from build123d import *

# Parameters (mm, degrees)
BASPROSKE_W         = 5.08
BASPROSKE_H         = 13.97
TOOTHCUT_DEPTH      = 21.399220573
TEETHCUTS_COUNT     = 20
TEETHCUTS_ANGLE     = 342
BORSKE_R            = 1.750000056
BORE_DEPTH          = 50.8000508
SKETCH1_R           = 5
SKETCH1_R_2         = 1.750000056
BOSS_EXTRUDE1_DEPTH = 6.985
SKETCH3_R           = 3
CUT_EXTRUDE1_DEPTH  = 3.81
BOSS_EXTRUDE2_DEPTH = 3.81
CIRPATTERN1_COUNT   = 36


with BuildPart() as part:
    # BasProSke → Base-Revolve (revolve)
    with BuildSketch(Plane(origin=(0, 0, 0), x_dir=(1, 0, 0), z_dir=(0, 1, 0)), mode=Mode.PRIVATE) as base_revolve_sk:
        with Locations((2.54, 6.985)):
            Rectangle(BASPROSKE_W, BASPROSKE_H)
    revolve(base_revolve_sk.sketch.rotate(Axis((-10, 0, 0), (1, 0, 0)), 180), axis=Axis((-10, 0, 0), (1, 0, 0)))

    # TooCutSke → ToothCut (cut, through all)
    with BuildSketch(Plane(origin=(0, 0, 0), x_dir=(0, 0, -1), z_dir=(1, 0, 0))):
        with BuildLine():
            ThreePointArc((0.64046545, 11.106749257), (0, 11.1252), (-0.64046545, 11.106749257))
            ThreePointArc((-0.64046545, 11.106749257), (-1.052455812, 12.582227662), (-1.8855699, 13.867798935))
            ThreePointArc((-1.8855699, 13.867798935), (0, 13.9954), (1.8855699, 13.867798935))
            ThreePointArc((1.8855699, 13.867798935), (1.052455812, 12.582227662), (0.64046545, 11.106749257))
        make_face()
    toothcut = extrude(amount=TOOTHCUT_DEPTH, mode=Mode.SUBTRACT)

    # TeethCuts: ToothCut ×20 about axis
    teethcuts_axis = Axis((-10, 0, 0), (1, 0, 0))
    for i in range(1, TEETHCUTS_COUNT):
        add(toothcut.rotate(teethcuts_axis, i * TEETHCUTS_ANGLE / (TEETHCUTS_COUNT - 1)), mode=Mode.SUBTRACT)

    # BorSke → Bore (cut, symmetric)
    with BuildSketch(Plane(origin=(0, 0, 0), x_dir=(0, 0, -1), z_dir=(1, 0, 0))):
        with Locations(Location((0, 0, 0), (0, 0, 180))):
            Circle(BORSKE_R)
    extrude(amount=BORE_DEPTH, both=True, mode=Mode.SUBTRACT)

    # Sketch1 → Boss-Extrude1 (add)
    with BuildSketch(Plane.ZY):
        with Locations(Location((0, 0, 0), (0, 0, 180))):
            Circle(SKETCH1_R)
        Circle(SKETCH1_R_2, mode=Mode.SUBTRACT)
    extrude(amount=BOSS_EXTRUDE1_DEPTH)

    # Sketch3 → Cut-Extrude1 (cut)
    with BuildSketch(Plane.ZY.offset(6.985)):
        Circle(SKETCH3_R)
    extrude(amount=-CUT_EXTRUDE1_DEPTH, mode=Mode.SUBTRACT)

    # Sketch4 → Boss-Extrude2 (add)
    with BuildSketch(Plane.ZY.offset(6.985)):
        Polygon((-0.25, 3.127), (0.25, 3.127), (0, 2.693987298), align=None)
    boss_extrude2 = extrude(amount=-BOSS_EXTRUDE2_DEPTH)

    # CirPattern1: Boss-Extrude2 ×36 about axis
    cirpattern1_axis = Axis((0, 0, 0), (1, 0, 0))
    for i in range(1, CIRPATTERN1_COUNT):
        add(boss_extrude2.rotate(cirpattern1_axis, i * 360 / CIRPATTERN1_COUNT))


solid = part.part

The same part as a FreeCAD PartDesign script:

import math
import FreeCAD as App
import Part
import Sketcher

V = App.Vector
Q = App.Units.Quantity

doc = App.newDocument("Part")
body = doc.addObject("PartDesign::Body", "Body")

sketch1 = doc.addObject("Sketcher::SketchObject", "Sketch")
body.addObject(sketch1)
sketch1.AttachmentSupport = (doc.XZ_Plane, [""])
sketch1.MapMode = "FlatFace"
sketch1.addGeometry(Part.LineSegment(V(0, -14, 0), V(0, 0, 0)), False)
sketch1.addGeometry(Part.LineSegment(V(0, 0, 0), V(5, 0, 0)), False)
sketch1.addGeometry(Part.LineSegment(V(5, 0, 0), V(5, -14, 0)), False)
sketch1.addGeometry(Part.LineSegment(V(5, -14, 0), V(0, -14, 0)), False)
sketch1.addConstraint(Sketcher.Constraint("Coincident", 0, 2, 1, 1))
sketch1.addConstraint(Sketcher.Constraint("Coincident", 1, 2, 2, 1))
sketch1.addConstraint(Sketcher.Constraint("Coincident", 2, 2, 3, 1))
sketch1.addConstraint(Sketcher.Constraint("Coincident", 3, 2, 0, 1))
sketch1.addConstraint(Sketcher.Constraint("Vertical", 0))
sketch1.addConstraint(Sketcher.Constraint("Horizontal", 1))
sketch1.addConstraint(Sketcher.Constraint("Vertical", 2))
sketch1.addConstraint(Sketcher.Constraint("Horizontal", 3))
sketch1.addConstraint(Sketcher.Constraint("Coincident", 0, 2, -1, 1))
sketch1.addConstraint(Sketcher.Constraint("DistanceX", 1, 1, 1, 2, Q("0.2 in")))
sketch1.addConstraint(Sketcher.Constraint("DistanceY", 0, 1, 0, 2, Q("0.55 in")))
revolution = doc.addObject("PartDesign::Revolution", "Revolution")
body.addObject(revolution)
revolution.Profile = sketch1
revolution.ReferenceAxis = (sketch1, ["H_Axis"])
revolution.Angle = 360

sketch2 = doc.addObject("Sketcher::SketchObject", "Sketch001")
body.addObject(sketch2)
sketch2.AttachmentSupport = (doc.YZ_Plane, [""])
sketch2.MapMode = "FlatFace"
sketch2.addGeometry(Part.ArcOfCircle(Part.Circle(V(0, 0, 0), V(0, 0, 1), 11.1), math.radians(-3.3), math.radians(3.3)), False)
sketch2.addGeometry(Part.ArcOfCircle(Part.Circle(V(10.5, -5.7, 0), V(0, 0, 1), 5.1), math.radians(48), math.radians(83)), False)
sketch2.addGeometry(Part.ArcOfCircle(Part.Circle(V(0, 0, 0), V(0, 0, 1), 14), math.radians(-7.74), math.radians(7.74)), False)
sketch2.addGeometry(Part.ArcOfCircle(Part.Circle(V(10.5, 5.7, 0), V(0, 0, 1), 5.1), math.radians(-83), math.radians(-48)), False)
sketch2.addConstraint(Sketcher.Constraint("Coincident", 0, 1, 1, 2))
sketch2.addConstraint(Sketcher.Constraint("Coincident", 1, 1, 2, 1))
sketch2.addConstraint(Sketcher.Constraint("Coincident", 2, 2, 3, 2))
sketch2.addConstraint(Sketcher.Constraint("Coincident", 3, 1, 0, 2))
sketch2.addConstraint(Sketcher.Constraint("Coincident", 0, 3, -1, 1))
sketch2.addConstraint(Sketcher.Constraint("Coincident", 2, 3, -1, 1))
sketch2.addConstraint(Sketcher.Constraint("Equal", 1, 3))
sketch2.addConstraint(Sketcher.Constraint("Symmetric", 1, 3, 3, 3, -1))
sketch2.addConstraint(Sketcher.Constraint("Radius", 1, Q("0.2 in")))
sketch2.addConstraint(Sketcher.Constraint("Radius", 0, Q("0.438 in")))
sketch2.addConstraint(Sketcher.Constraint("Radius", 2, Q("0.551 in")))
sketch2.addConstraint(Sketcher.Constraint("DistanceX", -1, 1, 1, 1, 13.867799))
sketch2.addConstraint(Sketcher.Constraint("DistanceY", 1, 3, 0, 1, 5.042898))
pocket1 = doc.addObject("PartDesign::Pocket", "Pocket")
body.addObject(pocket1)
pocket1.Profile = sketch2
pocket1.Type = "ThroughAll"
pocket1.Reversed = True
doc.recompute()

polarpattern = doc.addObject("PartDesign::PolarPattern", "PolarPattern")
body.addObject(polarpattern)
polarpattern.Originals = [pocket1]
polarpattern.Axis = (doc.X_Axis, [""])
polarpattern.Angle = 360
polarpattern.Occurrences = 20
body.Tip = polarpattern

sketch3 = doc.addObject("Sketcher::SketchObject", "Sketch002")
body.addObject(sketch3)
sketch3.AttachmentSupport = (doc.YZ_Plane, [""])
sketch3.MapMode = "FlatFace"
sketch3.addGeometry(Part.Circle(V(0, 0, 0), V(0, 0, 1), 1.8), False)
sketch3.addConstraint(Sketcher.Constraint("Coincident", 0, 3, -1, 1))
sketch3.addConstraint(Sketcher.Constraint("Diameter", 0, 3.5))
pocket2 = doc.addObject("PartDesign::Pocket", "Pocket001")
body.addObject(pocket2)
pocket2.Profile = sketch3
pocket2.Length = 101.600102
pocket2.Midplane = True

sketch4 = doc.addObject("Sketcher::SketchObject", "Sketch003")
body.addObject(sketch4)
sketch4.AttachmentSupport = (doc.YZ_Plane, [""])
sketch4.MapMode = "FlatFace"
sketch4.addGeometry(Part.Circle(V(0, 0, 0), V(0, 0, 1), 5), False)
sketch4.addGeometry(Part.Circle(V(0, 0, 0), V(0, 0, 1), 1.8), False)
sketch4.addConstraint(Sketcher.Constraint("Coincident", 0, 3, -1, 1))
sketch4.addConstraint(Sketcher.Constraint("Coincident", 1, 3, -1, 1))
sketch4.addConstraint(Sketcher.Constraint("Diameter", 0, 10.0))
sketch4.addConstraint(Sketcher.Constraint("Diameter", 1, 3.5))
pad1 = doc.addObject("PartDesign::Pad", "Pad")
body.addObject(pad1)
pad1.Profile = sketch4
pad1.Length = Q("0.275 in")
pad1.Reversed = True

sketch5 = doc.addObject("Sketcher::SketchObject", "Sketch004")
body.addObject(sketch5)
sketch5.AttachmentSupport = (doc.YZ_Plane, [""])
sketch5.MapMode = "FlatFace"
sketch5.AttachmentOffset = App.Placement(V(0, 0, -0.275 * 25.4), App.Rotation())
sketch5.addGeometry(Part.Circle(V(0, 0, 0), V(0, 0, 1), 3), False)
sketch5.addConstraint(Sketcher.Constraint("Coincident", 0, 3, -1, 1))
sketch5.addConstraint(Sketcher.Constraint("Diameter", 0, 6.0))
pocket3 = doc.addObject("PartDesign::Pocket", "Pocket002")
body.addObject(pocket3)
pocket3.Profile = sketch5
pocket3.Length = Q("0.15 in")
pocket3.Reversed = True

sketch6 = doc.addObject("Sketcher::SketchObject", "Sketch005")
body.addObject(sketch6)
sketch6.AttachmentSupport = (doc.YZ_Plane, [""])
sketch6.MapMode = "FlatFace"
sketch6.AttachmentOffset = App.Placement(V(0, 0, -0.275 * 25.4), App.Rotation())
sketch6.addGeometry(Part.LineSegment(V(3.1, 0.2, 0), V(3.1, -0.2, 0)), False)
sketch6.addGeometry(Part.LineSegment(V(3.1, -0.2, 0), V(2.7, 0, 0)), False)
sketch6.addGeometry(Part.LineSegment(V(2.7, 0, 0), V(3.1, 0.2, 0)), False)
sketch6.addConstraint(Sketcher.Constraint("Coincident", 0, 2, 1, 1))
sketch6.addConstraint(Sketcher.Constraint("Coincident", 1, 2, 2, 1))
sketch6.addConstraint(Sketcher.Constraint("Coincident", 2, 2, 0, 1))
sketch6.addConstraint(Sketcher.Constraint("Vertical", 0))
sketch6.addConstraint(Sketcher.Constraint("PointOnObject", 1, 2, -1))
sketch6.addConstraint(Sketcher.Constraint("Equal", 1, 2))
sketch6.addConstraint(Sketcher.Constraint("Angle", 1, Q("150 deg")))
sketch6.addConstraint(Sketcher.Constraint("DistanceY", 0, 2, 0, 1, 0.5))
sketch6.addConstraint(Sketcher.Constraint("DistanceX", -1, 1, 0, 2, 3.127))
pad2 = doc.addObject("PartDesign::Pad", "Pad001")
body.addObject(pad2)
pad2.Profile = sketch6
pad2.Length = Q("0.15 in")
doc.recompute()

polarpattern2 = doc.addObject("PartDesign::PolarPattern", "PolarPattern001")
body.addObject(polarpattern2)
polarpattern2.Originals = [pad2]
polarpattern2.Axis = (doc.X_Axis, [""])
polarpattern2.Angle = 360
polarpattern2.Occurrences = 36
body.Tip = polarpattern2

doc.recompute()
